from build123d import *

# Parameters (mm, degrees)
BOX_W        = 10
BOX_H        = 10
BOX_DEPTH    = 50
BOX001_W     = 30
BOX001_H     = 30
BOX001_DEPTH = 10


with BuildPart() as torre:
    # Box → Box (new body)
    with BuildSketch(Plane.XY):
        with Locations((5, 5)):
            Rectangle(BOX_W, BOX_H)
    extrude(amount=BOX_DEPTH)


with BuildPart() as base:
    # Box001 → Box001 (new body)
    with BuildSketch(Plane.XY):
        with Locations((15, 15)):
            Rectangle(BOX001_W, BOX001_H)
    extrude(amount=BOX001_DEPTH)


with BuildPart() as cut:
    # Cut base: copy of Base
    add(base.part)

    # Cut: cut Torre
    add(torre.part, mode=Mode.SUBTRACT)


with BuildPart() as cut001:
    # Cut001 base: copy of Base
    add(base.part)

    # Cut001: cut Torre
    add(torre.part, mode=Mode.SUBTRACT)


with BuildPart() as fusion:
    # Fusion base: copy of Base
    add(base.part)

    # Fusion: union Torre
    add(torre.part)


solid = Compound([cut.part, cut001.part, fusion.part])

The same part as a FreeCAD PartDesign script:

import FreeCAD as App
import Part
import Sketcher
Q = App.Units.Quantity


def add_polygon(sketch, points):
    """Adds a closed chain of lines whose ends are joined by coincident constraints."""
    first, n = sketch.GeometryCount, len(points)
    for a, b in zip(points, points[1:] + points[:1]):
        sketch.addGeometry(Part.LineSegment(App.Vector(*a, 0), App.Vector(*b, 0)), False)
    for i in range(n):
        sketch.addConstraint(Sketcher.Constraint("Coincident", first + i, 2, first + (i + 1) % n, 1))

doc = App.newDocument("Part")
body = doc.addObject("PartDesign::Body", "Body")

# Sketch on XY plane
sketch1 = body.newObject("Sketcher::SketchObject", "Sketch")
sketch1.AttachmentSupport = (doc.getObject("XY_Plane"), [""])
sketch1.MapMode = "FlatFace"
add_polygon(sketch1, [(0, 10), (0, 0), (10, 0), (10, 10)])  # lines 0-3
sketch1.addConstraint([
    Sketcher.Constraint("Vertical", 0),
    Sketcher.Constraint("Horizontal", 1),
    Sketcher.Constraint("Vertical", 2),
    Sketcher.Constraint("Horizontal", 3),
    Sketcher.Constraint("Coincident", 0, 2, -1, 1),
    Sketcher.Constraint("Equal", 3, 0),
    Sketcher.Constraint("DistanceX", 1, 1, 1, 2, Q("10 mm")),
])
pad1 = body.newObject("PartDesign::Pad", "Pad")
pad1.Profile = sketch1
pad1.Length = 50
body2 = doc.addObject("PartDesign::Body", "Body001")

# Sketch on XY plane
sketch2 = body2.newObject("Sketcher::SketchObject", "Sketch001")
sketch2.AttachmentSupport = (doc.getObject("XY_Plane001"), [""])
sketch2.MapMode = "FlatFace"
add_polygon(sketch2, [(0, 30), (0, 0), (30, 0), (30, 30)])  # lines 0-3
sketch2.addConstraint([
    Sketcher.Constraint("Vertical", 0),
    Sketcher.Constraint("Horizontal", 1),
    Sketcher.Constraint("Vertical", 2),
    Sketcher.Constraint("Horizontal", 3),
    Sketcher.Constraint("Coincident", 0, 2, -1, 1),
    Sketcher.Constraint("Equal", 3, 0),
    Sketcher.Constraint("DistanceX", 1, 1, 1, 2, Q("30 mm")),
])
pad2 = body2.newObject("PartDesign::Pad", "Pad001")
pad2.Profile = sketch2
pad2.Length = 10
body3 = doc.addObject("PartDesign::Body", "Body002")
doc.recompute()

body3.BaseFeature = body2
doc.recompute()

body4 = doc.addObject("PartDesign::Body", "Body003")
body4.BaseFeature = body
boolean = body3.newObject("PartDesign::Boolean", "Boolean")
boolean.Type = "Cut"
boolean.addObjects([body4])
doc.recompute()
body5 = doc.addObject("PartDesign::Body", "Body004")
doc.recompute()

body5.BaseFeature = body2
doc.recompute()

body6 = doc.addObject("PartDesign::Body", "Body005")
body6.BaseFeature = body
boolean2 = body5.newObject("PartDesign::Boolean", "Boolean001")
boolean2.Type = "Cut"
boolean2.addObjects([body6])
doc.recompute()

boolean3 = body2.newObject("PartDesign::Boolean", "Boolean002")
boolean3.Type = "Fuse"
boolean3.addObjects([body])

doc.recompute()
